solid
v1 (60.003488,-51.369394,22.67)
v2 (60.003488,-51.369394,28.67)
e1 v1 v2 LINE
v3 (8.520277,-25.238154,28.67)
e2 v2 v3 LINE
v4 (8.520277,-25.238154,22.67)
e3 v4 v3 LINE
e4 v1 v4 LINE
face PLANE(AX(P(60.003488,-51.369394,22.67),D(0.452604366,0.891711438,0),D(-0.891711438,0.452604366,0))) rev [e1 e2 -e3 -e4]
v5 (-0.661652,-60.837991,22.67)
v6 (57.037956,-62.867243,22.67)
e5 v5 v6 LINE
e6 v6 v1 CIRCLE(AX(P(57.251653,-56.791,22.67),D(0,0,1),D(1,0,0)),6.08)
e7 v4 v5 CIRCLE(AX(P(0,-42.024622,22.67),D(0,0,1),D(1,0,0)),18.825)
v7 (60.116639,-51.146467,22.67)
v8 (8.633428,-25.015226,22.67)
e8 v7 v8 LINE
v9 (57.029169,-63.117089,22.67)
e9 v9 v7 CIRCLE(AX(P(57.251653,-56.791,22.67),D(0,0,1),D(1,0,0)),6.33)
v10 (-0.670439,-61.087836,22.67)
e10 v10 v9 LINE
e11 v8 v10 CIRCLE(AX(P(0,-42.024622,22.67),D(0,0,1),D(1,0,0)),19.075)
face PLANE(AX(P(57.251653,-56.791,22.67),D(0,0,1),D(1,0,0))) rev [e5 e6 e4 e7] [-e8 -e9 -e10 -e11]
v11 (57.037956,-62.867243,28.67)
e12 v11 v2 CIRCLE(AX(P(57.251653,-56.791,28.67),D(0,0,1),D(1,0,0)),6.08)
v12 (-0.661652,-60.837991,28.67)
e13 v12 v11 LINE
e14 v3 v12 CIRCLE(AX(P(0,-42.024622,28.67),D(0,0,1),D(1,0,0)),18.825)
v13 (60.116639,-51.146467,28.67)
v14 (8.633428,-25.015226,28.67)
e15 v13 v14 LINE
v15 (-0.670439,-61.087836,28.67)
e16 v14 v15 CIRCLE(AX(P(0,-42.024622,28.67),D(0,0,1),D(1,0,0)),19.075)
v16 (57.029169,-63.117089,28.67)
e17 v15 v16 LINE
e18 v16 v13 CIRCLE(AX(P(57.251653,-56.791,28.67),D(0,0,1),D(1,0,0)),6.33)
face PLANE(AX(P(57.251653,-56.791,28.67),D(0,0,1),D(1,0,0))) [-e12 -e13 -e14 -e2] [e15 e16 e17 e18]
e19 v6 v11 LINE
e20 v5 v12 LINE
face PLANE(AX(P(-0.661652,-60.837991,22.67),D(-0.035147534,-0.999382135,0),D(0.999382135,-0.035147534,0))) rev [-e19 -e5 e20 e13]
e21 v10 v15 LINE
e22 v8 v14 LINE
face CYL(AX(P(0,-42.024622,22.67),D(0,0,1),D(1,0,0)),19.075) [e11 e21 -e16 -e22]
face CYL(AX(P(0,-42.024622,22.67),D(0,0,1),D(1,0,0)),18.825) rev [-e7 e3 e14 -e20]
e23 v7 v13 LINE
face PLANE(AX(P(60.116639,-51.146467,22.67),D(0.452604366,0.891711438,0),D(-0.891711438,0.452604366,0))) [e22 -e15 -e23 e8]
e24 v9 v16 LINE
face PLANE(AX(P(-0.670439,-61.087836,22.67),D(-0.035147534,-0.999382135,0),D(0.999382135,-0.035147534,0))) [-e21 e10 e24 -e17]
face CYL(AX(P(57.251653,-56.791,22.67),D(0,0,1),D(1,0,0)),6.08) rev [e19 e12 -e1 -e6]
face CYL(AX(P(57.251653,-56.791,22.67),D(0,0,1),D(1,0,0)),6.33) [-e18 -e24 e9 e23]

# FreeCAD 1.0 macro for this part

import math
import FreeCAD as App
import Part
import Sketcher
from FreeCAD import Vector

doc = App.newDocument("Part")
params = doc.addObject("Spreadsheet::Sheet", "Params")
for row, (alias, value) in enumerate([
    ("sketch1_radius", "6.33 mm"),
    ("sketch1_radius2", "6.08 mm"),
    ("pad1_length", "3 mm"),
    ("pad1_length2", "3 mm"),
], start=1):
    params.set(f"A{row}", alias)
    params.set(f"B{row}", "=" + value)
    params.setAlias(f"B{row}", alias)

body = doc.addObject("PartDesign::Body", "Body")

# Sketch on XY plane
sketch1 = body.newObject("Sketcher::SketchObject", "Sketch")
sketch1.AttachmentSupport = (doc.getObject("XY_Plane"), [""])
sketch1.MapMode = "FlatFace"
sketch1.AttachmentOffset = App.Placement(Vector(0, 0, 25.67), App.Rotation())
sketch1.addGeometry([
    Part.LineSegment(Vector(60, -51, 0), Vector(9, -25, 0)),  # 0
    Part.ArcOfCircle(Part.Circle(Vector(0, -42, 0), Vector(0, 0, 1), 19), math.radians(63), math.radians(268)),  # 1
    Part.LineSegment(Vector(-1, -61, 0), Vector(57, -63, 0)),  # 2
    Part.ArcOfCircle(Part.Circle(Vector(57, -57, 0), Vector(0, 0, 1), 6), math.radians(-92), math.radians(63)),  # 3
    Part.LineSegment(Vector(9, -25, 0), Vector(60, -51, 0)),  # 4
    Part.ArcOfCircle(Part.Circle(Vector(57, -57, 0), Vector(0, 0, 1), 6), math.radians(-92), math.radians(63)),  # 5
    Part.LineSegment(Vector(57, -63, 0), Vector(-1, -61, 0)),  # 6
    Part.ArcOfCircle(Part.Circle(Vector(0, -42, 0), Vector(0, 0, 1), 19), math.radians(63), math.radians(268)),  # 7
], False)
sketch1.addConstraint([
    Sketcher.Constraint("Tangent", 0, 2, 1, 1),
    Sketcher.Constraint("Tangent", 1, 2, 2, 1),
    Sketcher.Constraint("Tangent", 2, 2, 3, 1),
    Sketcher.Constraint("Tangent", 3, 2, 0, 1),
    Sketcher.Constraint("Tangent", 4, 2, 5, 2),
    Sketcher.Constraint("Tangent", 5, 1, 6, 1),
    Sketcher.Constraint("Tangent", 6, 2, 7, 2),
    Sketcher.Constraint("Tangent", 7, 1, 4, 1),
    Sketcher.Constraint("Coincident", 5, 3, 3, 3),
    Sketcher.Constraint("Coincident", 7, 3, 1, 3),
    Sketcher.Constraint("PointOnObject", 1, 3, -2),
    Sketcher.Constraint("Parallel", 0, 4),
    Sketcher.Constraint("Radius", 3, 6.33),
    Sketcher.Constraint("Radius", 5, 6.08),
    Sketcher.Constraint("Radius", 1, 19.075),
    Sketcher.Constraint("DistanceY", 3, 3, -1, 1, 56.791),
    Sketcher.Constraint("Distance", 0, 57.735281),
    Sketcher.Constraint("DistanceY", 1, 3, -1, 1, 42.024622),
])
sketch1.setExpression("Constraints[12]", "Params.sketch1_radius")
sketch1.setExpression("Constraints[13]", "Params.sketch1_radius2")
pad1 = body.newObject("PartDesign::Pad", "Pad")
pad1.Profile = sketch1
pad1.Type = "TwoLengths"
pad1.setExpression("Length", "Params.pad1_length")
pad1.setExpression("Length2", "Params.pad1_length2")

doc.recompute()
